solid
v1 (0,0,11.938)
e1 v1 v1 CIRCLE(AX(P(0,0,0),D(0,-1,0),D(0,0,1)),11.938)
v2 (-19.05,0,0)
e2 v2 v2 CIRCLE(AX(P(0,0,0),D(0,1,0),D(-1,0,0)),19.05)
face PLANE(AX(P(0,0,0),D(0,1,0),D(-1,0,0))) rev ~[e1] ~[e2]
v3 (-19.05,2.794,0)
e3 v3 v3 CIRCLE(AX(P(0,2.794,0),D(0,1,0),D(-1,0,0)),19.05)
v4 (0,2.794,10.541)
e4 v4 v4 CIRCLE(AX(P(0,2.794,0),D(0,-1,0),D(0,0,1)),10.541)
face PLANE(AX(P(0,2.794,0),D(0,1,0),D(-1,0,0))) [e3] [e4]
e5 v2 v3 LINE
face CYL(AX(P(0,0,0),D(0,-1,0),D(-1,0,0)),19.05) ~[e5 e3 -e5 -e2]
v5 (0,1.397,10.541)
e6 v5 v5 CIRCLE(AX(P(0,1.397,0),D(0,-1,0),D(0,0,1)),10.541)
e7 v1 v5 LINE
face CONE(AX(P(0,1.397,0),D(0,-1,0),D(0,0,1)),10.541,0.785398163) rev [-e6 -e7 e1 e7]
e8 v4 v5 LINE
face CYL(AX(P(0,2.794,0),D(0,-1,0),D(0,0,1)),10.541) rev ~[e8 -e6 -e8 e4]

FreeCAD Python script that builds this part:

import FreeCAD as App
import Part
import Sketcher
from FreeCAD import Vector
Q = App.Units.Quantity


def edges_at(feature, points):
    """Names of the edges that pass closest to the given points."""
    edges = feature.Shape.Edges
    near = lambda p: min(range(len(edges)), key=lambda i: edges[i].distToShape(Part.Vertex(*p))[0])
    return sorted({f"Edge{near(p) + 1}" for p in points})

doc = App.newDocument("Part")
body = doc.addObject("PartDesign::Body", "Body")

# Sketch on XZ plane
sketch1 = body.newObject("Sketcher::SketchObject", "Sketch")
sketch1.AttachmentSupport = (doc.getObject("XZ_Plane"), [""])
sketch1.MapMode = "FlatFace"
sketch1.addGeometry(Part.Circle(Vector(0, 0, 0), Vector(0, 0, 1), 19), False)
sketch1.addConstraint([
    Sketcher.Constraint("Coincident", 0, 3, -1, 1),
    Sketcher.Constraint("Diameter", 0, Q("1.5 in")),
])
pad1 = body.newObject("PartDesign::Pad", "Pad")
pad1.Profile = sketch1
pad1.Length = Q("0.11 in")
pad1.Reversed = True

# Sketch on XZ plane
sketch2 = body.newObject("Sketcher::SketchObject", "Sketch001")
sketch2.AttachmentSupport = (doc.getObject("XZ_Plane"), [""])
sketch2.MapMode = "FlatFace"
sketch2.AttachmentOffset = App.Placement(Vector(0, 0, -0.11 * 25.4), App.Rotation())
sketch2.addGeometry(Part.Circle(Vector(0, 0, 0), Vector(0, 0, 1), 11), False)
sketch2.addConstraint([
    Sketcher.Constraint("Coincident", 0, 3, -1, 1),
    Sketcher.Constraint("Diameter", 0, Q("0.83 in")),
])
doc.recompute()
hole = body.newObject("PartDesign::Hole", "Hole")
hole.Profile = sketch2
hole.ThreadType = "None"
hole.Diameter = Q("0.83 in")
hole.DepthType = "ThroughAll"
hole.Reversed = True
doc.recompute()

chamfer = body.newObject("PartDesign::Chamfer", "Chamfer")
chamfer.Base = (hole, edges_at(hole, [(0, 0, -10.541)]))
chamfer.Size = Q("0.055 in")

doc.recompute()
